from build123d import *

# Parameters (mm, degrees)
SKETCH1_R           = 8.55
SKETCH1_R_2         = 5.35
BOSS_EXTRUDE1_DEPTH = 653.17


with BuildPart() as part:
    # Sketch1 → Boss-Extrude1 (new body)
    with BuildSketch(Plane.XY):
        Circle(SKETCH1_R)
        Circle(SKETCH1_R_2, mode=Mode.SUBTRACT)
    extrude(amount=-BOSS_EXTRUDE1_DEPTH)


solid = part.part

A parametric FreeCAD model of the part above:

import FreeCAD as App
import Part
import Sketcher

V = App.Vector

doc = App.newDocument("Part")
body = doc.addObject("PartDesign::Body", "Body")

# Sketch on XY plane
sketch1 = body.newObject("Sketcher::SketchObject", "Sketch")
sketch1.AttachmentSupport = (doc.getObject("XY_Plane"), [""])
sketch1.MapMode = "FlatFace"
sketch1.addGeometry([
    Part.Circle(V(0, 0, 0), V(0, 0, 1), 8.55),
    Part.Circle(V(0, 0, 0), V(0, 0, 1), 5.35),
], False)
sketch1.addConstraint([
    Sketcher.Constraint("Coincident", 0, 3, -1, 1),
    Sketcher.Constraint("Coincident", 1, 3, -1, 1),
    Sketcher.Constraint("Diameter", 0, 17.1),
    Sketcher.Constraint("Diameter", 1, 10.7),
])
pad1 = body.newObject("PartDesign::Pad", "Pad")
pad1.Profile = sketch1
pad1.Length = 653.17
pad1.Reversed = True

doc.recompute()
